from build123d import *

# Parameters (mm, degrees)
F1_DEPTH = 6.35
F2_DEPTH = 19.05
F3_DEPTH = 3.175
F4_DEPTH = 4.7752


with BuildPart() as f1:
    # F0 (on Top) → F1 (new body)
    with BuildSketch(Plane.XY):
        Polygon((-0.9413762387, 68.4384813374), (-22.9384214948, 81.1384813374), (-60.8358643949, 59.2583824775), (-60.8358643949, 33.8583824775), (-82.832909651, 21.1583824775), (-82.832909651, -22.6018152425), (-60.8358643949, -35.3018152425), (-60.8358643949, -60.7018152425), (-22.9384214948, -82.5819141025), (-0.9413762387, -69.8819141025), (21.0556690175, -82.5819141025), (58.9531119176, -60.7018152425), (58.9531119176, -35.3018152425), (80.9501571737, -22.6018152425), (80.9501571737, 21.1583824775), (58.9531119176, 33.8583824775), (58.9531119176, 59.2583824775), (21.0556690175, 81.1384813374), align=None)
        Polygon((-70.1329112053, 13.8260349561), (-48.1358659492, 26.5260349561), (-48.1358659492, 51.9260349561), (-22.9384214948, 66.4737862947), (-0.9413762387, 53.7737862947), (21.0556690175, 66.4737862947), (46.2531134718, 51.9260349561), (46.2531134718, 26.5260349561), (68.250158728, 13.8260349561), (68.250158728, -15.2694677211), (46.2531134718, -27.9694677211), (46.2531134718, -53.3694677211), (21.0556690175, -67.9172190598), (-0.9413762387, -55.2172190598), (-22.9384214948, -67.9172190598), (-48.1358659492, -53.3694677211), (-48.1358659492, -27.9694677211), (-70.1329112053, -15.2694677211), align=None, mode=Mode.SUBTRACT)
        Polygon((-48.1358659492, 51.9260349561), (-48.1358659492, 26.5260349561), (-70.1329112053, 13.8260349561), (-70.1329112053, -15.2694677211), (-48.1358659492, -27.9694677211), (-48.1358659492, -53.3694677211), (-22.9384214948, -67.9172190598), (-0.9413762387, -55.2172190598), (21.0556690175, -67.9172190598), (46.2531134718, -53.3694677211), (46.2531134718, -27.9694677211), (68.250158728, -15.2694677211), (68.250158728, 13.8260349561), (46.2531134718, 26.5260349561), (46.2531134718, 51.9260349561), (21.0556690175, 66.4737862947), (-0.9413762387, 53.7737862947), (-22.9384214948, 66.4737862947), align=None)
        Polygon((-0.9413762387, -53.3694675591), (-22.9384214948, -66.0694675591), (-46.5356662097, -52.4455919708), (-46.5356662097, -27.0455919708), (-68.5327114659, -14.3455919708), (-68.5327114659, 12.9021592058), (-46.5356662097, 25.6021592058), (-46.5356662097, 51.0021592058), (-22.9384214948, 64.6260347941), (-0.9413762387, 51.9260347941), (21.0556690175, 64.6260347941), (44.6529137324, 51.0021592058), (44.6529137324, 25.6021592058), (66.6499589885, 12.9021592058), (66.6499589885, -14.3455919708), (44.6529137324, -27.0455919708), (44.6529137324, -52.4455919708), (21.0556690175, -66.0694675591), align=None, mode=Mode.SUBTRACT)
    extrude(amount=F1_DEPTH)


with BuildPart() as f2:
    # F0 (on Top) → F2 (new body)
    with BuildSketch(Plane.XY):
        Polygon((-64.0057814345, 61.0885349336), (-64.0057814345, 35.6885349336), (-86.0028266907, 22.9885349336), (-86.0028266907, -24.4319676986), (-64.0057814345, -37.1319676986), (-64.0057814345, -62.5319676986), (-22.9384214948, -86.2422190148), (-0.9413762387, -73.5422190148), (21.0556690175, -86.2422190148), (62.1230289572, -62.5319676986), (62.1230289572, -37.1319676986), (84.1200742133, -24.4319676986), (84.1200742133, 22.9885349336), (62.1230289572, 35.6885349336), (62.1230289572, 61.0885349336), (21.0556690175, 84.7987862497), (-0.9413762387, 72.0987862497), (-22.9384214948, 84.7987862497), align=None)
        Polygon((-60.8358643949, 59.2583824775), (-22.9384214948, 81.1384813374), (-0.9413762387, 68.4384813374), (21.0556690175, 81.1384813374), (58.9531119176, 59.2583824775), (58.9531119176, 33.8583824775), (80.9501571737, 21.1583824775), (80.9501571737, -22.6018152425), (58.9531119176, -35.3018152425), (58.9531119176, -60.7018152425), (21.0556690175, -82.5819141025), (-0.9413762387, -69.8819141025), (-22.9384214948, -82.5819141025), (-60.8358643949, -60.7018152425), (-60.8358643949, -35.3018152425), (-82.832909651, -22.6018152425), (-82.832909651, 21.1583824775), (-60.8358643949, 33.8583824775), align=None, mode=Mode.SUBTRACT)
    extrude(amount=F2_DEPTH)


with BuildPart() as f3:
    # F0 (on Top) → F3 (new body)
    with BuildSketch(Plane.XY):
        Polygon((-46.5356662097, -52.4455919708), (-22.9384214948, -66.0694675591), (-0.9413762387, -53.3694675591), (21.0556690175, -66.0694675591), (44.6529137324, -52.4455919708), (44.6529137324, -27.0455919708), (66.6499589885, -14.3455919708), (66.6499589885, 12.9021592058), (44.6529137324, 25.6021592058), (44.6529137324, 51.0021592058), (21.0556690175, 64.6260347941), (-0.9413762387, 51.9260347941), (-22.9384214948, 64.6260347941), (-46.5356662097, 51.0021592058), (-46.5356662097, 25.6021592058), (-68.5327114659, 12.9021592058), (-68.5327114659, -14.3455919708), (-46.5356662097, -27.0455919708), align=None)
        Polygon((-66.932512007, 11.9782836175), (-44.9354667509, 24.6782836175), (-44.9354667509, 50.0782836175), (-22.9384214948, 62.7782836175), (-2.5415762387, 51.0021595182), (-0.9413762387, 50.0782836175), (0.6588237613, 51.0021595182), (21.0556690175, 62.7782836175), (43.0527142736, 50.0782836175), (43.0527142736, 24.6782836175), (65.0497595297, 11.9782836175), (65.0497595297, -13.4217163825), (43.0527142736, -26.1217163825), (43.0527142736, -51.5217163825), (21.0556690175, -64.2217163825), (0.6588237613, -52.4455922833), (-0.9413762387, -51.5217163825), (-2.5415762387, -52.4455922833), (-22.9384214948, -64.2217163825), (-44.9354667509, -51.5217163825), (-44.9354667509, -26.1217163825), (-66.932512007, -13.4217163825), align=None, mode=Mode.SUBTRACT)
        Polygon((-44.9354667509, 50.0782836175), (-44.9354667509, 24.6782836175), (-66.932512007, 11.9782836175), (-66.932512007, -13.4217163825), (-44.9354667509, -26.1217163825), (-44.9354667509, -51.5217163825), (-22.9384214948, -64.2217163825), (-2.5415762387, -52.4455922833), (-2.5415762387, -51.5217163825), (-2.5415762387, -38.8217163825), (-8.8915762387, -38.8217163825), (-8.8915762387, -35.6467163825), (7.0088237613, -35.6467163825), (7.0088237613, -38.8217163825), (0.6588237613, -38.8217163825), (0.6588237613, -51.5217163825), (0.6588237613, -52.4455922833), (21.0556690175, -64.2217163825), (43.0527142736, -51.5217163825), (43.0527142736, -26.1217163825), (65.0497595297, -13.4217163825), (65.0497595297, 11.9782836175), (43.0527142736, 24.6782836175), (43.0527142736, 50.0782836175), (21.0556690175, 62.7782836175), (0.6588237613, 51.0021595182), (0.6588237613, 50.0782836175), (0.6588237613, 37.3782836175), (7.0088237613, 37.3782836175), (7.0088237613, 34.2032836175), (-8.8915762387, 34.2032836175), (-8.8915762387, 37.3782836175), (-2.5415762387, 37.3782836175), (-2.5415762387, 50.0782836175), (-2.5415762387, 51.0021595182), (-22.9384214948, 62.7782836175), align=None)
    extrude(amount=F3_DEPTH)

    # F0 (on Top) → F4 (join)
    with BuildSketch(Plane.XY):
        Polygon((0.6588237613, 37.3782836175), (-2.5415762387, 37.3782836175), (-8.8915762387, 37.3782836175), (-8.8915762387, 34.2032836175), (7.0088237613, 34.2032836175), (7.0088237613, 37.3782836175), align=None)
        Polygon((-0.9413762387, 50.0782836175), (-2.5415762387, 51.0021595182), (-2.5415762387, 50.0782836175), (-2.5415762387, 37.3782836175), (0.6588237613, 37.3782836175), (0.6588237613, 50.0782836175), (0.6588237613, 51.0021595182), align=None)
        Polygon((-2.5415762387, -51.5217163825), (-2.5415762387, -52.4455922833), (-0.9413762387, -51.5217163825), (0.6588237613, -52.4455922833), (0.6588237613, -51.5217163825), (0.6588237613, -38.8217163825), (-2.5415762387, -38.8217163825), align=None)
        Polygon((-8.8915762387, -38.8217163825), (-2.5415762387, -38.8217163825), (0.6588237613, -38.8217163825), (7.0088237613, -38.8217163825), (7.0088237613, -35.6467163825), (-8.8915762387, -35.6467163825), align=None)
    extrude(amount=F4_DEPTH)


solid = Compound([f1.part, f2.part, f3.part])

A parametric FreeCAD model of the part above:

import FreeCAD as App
import Part
import Sketcher
from FreeCAD import Vector
Q = App.Units.Quantity


def add_polygon(sketch, points):
    """Adds a closed chain of lines whose ends are joined by coincident constraints."""
    first, n = sketch.GeometryCount, len(points)
    for a, b in zip(points, points[1:] + points[:1]):
        sketch.addGeometry(Part.LineSegment(App.Vector(*a, 0), App.Vector(*b, 0)), False)
    for i in range(n):
        sketch.addConstraint(Sketcher.Constraint("Coincident", first + i, 2, first + (i + 1) % n, 1))

doc = App.newDocument("Part")
params = doc.addObject("Spreadsheet::Sheet", "Params")
for row, (alias, value) in enumerate([
    ("sketch1_height", "1 in"),
    ("sketch1_length", "1 in"),
    ("pad1_length", "0.25 in"),
    ("sketch2_height", "1 in"),
    ("sketch2_length", "1 in"),
    ("pad2_length", "0.75 in"),
    ("sketch3_height", "1 in"),
    ("sketch3_length", "1 in"),
    ("sketch3_width", "0.25 in"),
    ("sketch3_width2", "0.626 in"),
    ("sketch3_height2", "0.125 in"),
    ("pad3_length", "0.125 in"),
    ("sketch4_width", "0.25 in"),
    ("sketch4_width2", "0.626 in"),
    ("sketch4_height", "0.125 in"),
    ("pad4_length", "0.188 in"),
], start=1):
    params.set(f"A{row}", alias)
    params.set(f"B{row}", "=" + value)
    params.setAlias(f"B{row}", alias)

body = doc.addObject("PartDesign::Body", "Body")

sketch1 = body.newObject("Sketcher::SketchObject", "Sketch")
sketch1.AttachmentSupport = (doc.getObject("XY_Plane"), [""])
sketch1.MapMode = "FlatFace"
add_polygon(sketch1, [(-1, 68), (-23, 81), (-61, 59), (-61, 34), (-83, 21), (-83, -23), (-61, -35), (-61, -61), (-23, -83), (-1, -70), (21, -83), (59, -61), (59, -35), (81, -23), (81, 21), (59, 34), (59, 59), (21, 81)])
add_polygon(sketch1, [(21, -66), (-1, -53), (-23, -66), (-47, -52), (-47, -27), (-69, -14), (-69, 13), (-47, 26), (-47, 51), (-23, 65), (-1, 52), (21, 65), (45, 51), (45, 26), (67, 13), (67, -14), (45, -27), (45, -52)])
sketch1.addConstraint([
    Sketcher.Constraint("Vertical", 2),
    Sketcher.Constraint("Vertical", 4),
    Sketcher.Constraint("Vertical", 6),
    Sketcher.Constraint("Vertical", 11),
    Sketcher.Constraint("Vertical", 13),
    Sketcher.Constraint("Vertical", 15),
    Sketcher.Constraint("Vertical", 21),
    Sketcher.Constraint("Vertical", 23),
    Sketcher.Constraint("Vertical", 25),
    Sketcher.Constraint("Vertical", 30),
    Sketcher.Constraint("Vertical", 32),
    Sketcher.Constraint("Vertical", 34),
    Sketcher.Constraint("Parallel", 1, 3),
    Sketcher.Constraint("Parallel", 0, 5),
    Sketcher.Constraint("Parallel", 5, 7),
    Sketcher.Constraint("Parallel", 3, 8),
    Sketcher.Constraint("Parallel", 7, 9),
    Sketcher.Constraint("Parallel", 8, 10),
    Sketcher.Constraint("Parallel", 10, 12),
    Sketcher.Constraint("Parallel", 9, 14),
    Sketcher.Constraint("Parallel", 14, 16),
    Sketcher.Constraint("Parallel", 12, 17),
    Sketcher.Constraint("Parallel", 16, 18),
    Sketcher.Constraint("Parallel", 17, 19),
    Sketcher.Constraint("Parallel", 18, 20),
    Sketcher.Constraint("Parallel", 20, 22),
    Sketcher.Constraint("Parallel", 19, 24),
    Sketcher.Constraint("Parallel", 24, 26),
    Sketcher.Constraint("Parallel", 22, 27),
    Sketcher.Constraint("Parallel", 26, 28),
    Sketcher.Constraint("Parallel", 27, 29),
    Sketcher.Constraint("Parallel", 29, 31),
    Sketcher.Constraint("Parallel", 28, 33),
    Sketcher.Constraint("Parallel", 33, 35),
    Sketcher.Constraint("Horizontal", 7, 2, 9, 2),
    Sketcher.Constraint("Horizontal", 6, 2, 10, 2),
    Sketcher.Constraint("Horizontal", 5, 2, 11, 2),
    Sketcher.Constraint("Horizontal", 4, 2, 12, 2),
    Sketcher.Constraint("Horizontal", 3, 2, 13, 2),
    Sketcher.Constraint("Horizontal", 2, 2, 14, 2),
    Sketcher.Constraint("Horizontal", 1, 2, 15, 2),
    Sketcher.Constraint("Horizontal", 0, 2, 16, 2),
    Sketcher.Constraint("Horizontal", 26, 2, 28, 2),
    Sketcher.Constraint("Horizontal", 25, 2, 29, 2),
    Sketcher.Constraint("Horizontal", 24, 2, 30, 2),
    Sketcher.Constraint("Horizontal", 23, 2, 31, 2),
    Sketcher.Constraint("Horizontal", 22, 2, 32, 2),
    Sketcher.Constraint("Horizontal", 21, 2, 33, 2),
    Sketcher.Constraint("Horizontal", 20, 2, 34, 2),
    Sketcher.Constraint("Horizontal", 19, 2, 35, 2),
    Sketcher.Constraint("Vertical", 2, 2, 5, 2),
    Sketcher.Constraint("Vertical", 0, 2, 7, 2),
    Sketcher.Constraint("Vertical", 11, 2, 14, 2),
    Sketcher.Constraint("Vertical", 17, 2, 18, 2),
    Sketcher.Constraint("Vertical", 7, 2, 19, 2),
    Sketcher.Constraint("Vertical", 21, 2, 24, 2),
    Sketcher.Constraint("Vertical", 19, 2, 26, 2),
    Sketcher.Constraint("Equal", 2, 6),
    Sketcher.Constraint("Equal", 15, 21),
    Sketcher.Constraint("Equal", 21, 25),
    Sketcher.Constraint("Equal", 0, 3),
    Sketcher.Constraint("Equal", 19, 22),
    Sketcher.Constraint("DistanceY", 2, 2, 2, 1, Q("1 in")),
    Sketcher.Constraint("Distance", 0, Q("1 in")),
    Sketcher.Constraint("Angle", 0, Q("150 deg")),
    Sketcher.Constraint("DistanceX", 6, 2, 20, 2, Q("0.5629999 in")),
    Sketcher.Constraint("DistanceY", 23, 1, 23, 2, Q("27.247751 mm")),
    Sketcher.Constraint("DistanceY", 1, 2, 0, 2, Q("21.880099 mm")),
    Sketcher.Constraint("DistanceY", 4, 2, 4, 1, Q("43.760198 mm")),
    Sketcher.Constraint("DistanceX", 0, 2, -1, 1, Q("22.938421 mm")),
    Sketcher.Constraint("DistanceY", -1, 1, 0, 2, Q("81.138481 mm")),
    Sketcher.Constraint("DistanceY", 20, 2, -1, 1, Q("52.445592 mm")),
])
sketch1.setExpression("Constraints[98]", "Params.sketch1_height")
sketch1.setExpression("Constraints[99]", "Params.sketch1_length")
pad1 = body.newObject("PartDesign::Pad", "Pad")
pad1.Profile = sketch1
pad1.setExpression("Length", "Params.pad1_length")
body2 = doc.addObject("PartDesign::Body", "Body001")

sketch2 = body2.newObject("Sketcher::SketchObject", "Sketch001")
sketch2.AttachmentSupport = (doc.getObject("XY_Plane001"), [""])
sketch2.MapMode = "FlatFace"
add_polygon(sketch2, [(-64, 61), (-64, 36), (-86, 23), (-86, -24), (-64, -37), (-64, -63), (-23, -86), (-1, -74), (21, -86), (62, -63), (62, -37), (84, -24), (84, 23), (62, 36), (62, 61), (21, 85), (-1, 72), (-23, 85)])
add_polygon(sketch2, [(-61, 34), (-61, 59), (-23, 81), (-1, 68), (21, 81), (59, 59), (59, 34), (81, 21), (81, -23), (59, -35), (59, -61), (21, -83), (-1, -70), (-23, -83), (-61, -61), (-61, -35), (-83, -23), (-83, 21)])
sketch2.addConstraint([
    Sketcher.Constraint("Vertical", 0),
    Sketcher.Constraint("Vertical", 2),
    Sketcher.Constraint("Vertical", 4),
    Sketcher.Constraint("Vertical", 9),
    Sketcher.Constraint("Vertical", 11),
    Sketcher.Constraint("Vertical", 13),
    Sketcher.Constraint("Vertical", 18),
    Sketcher.Constraint("Vertical", 23),
    Sketcher.Constraint("Vertical", 25),
    Sketcher.Constraint("Vertical", 27),
    Sketcher.Constraint("Vertical", 32),
    Sketcher.Constraint("Vertical", 34),
    Sketcher.Constraint("Parallel", 3, 5),
    Sketcher.Constraint("Parallel", 1, 6),
    Sketcher.Constraint("Parallel", 5, 7),
    Sketcher.Constraint("Parallel", 6, 8),
    Sketcher.Constraint("Parallel", 8, 10),
    Sketcher.Constraint("Parallel", 7, 12),
    Sketcher.Constraint("Parallel", 12, 14),
    Sketcher.Constraint("Parallel", 10, 15),
    Sketcher.Constraint("Parallel", 14, 16),
    Sketcher.Constraint("Parallel", 15, 17),
    Sketcher.Constraint("Parallel", 17, 19),
    Sketcher.Constraint("Parallel", 16, 20),
    Sketcher.Constraint("Parallel", 19, 21),
    Sketcher.Constraint("Parallel", 20, 22),
    Sketcher.Constraint("Parallel", 22, 24),
    Sketcher.Constraint("Parallel", 21, 26),
    Sketcher.Constraint("Parallel", 26, 28),
    Sketcher.Constraint("Parallel", 24, 29),
    Sketcher.Constraint("Parallel", 28, 30),
    Sketcher.Constraint("Parallel", 29, 31),
    Sketcher.Constraint("Parallel", 31, 33),
    Sketcher.Constraint("Parallel", 30, 35),
    Sketcher.Constraint("Horizontal", 5, 2, 7, 2),
    Sketcher.Constraint("Horizontal", 4, 2, 8, 2),
    Sketcher.Constraint("Horizontal", 3, 2, 9, 2),
    Sketcher.Constraint("Horizontal", 2, 2, 10, 2),
    Sketcher.Constraint("Horizontal", 1, 2, 11, 2),
    Sketcher.Constraint("Horizontal", 0, 2, 12, 2),
    Sketcher.Constraint("Horizontal", 14, 2, 16, 2),
    Sketcher.Constraint("Horizontal", 13, 2, 17, 2),
    Sketcher.Constraint("Horizontal", 19, 2, 21, 2),
    Sketcher.Constraint("Horizontal", 18, 2, 22, 2),
    Sketcher.Constraint("Horizontal", 28, 2, 30, 2),
    Sketcher.Constraint("Horizontal", 27, 2, 31, 2),
    Sketcher.Constraint("Horizontal", 26, 2, 32, 2),
    Sketcher.Constraint("Horizontal", 25, 2, 33, 2),
    Sketcher.Constraint("Horizontal", 24, 2, 34, 2),
    Sketcher.Constraint("Horizontal", 23, 2, 35, 2),
    Sketcher.Constraint("Vertical", 0, 2, 3, 2),
    Sketcher.Constraint("Vertical", 9, 2, 12, 2),
    Sketcher.Constraint("Vertical", 7, 2, 14, 2),
    Sketcher.Constraint("Vertical", 16, 2, 19, 2),
    Sketcher.Constraint("Vertical", 15, 2, 20, 2),
    Sketcher.Constraint("Vertical", 23, 2, 26, 2),
    Sketcher.Constraint("Vertical", 21, 2, 28, 2),
    Sketcher.Constraint("Equal", 0, 4),
    Sketcher.Constraint("Equal", 13, 18),
    Sketcher.Constraint("Equal", 23, 27),
    Sketcher.Constraint("Equal", 3, 6),
    Sketcher.Constraint("Equal", 21, 24),
    Sketcher.Constraint("DistanceY", 0, 2, 0, 1, Q("1 in")),
    Sketcher.Constraint("Distance", 1, Q("1 in")),
    Sketcher.Constraint("Angle", 1, Q("-150 deg")),
    Sketcher.Constraint("DistanceX", 17, 2, 18, 2, Q("0.1247999 in")),
    Sketcher.Constraint("DistanceY", 18, 2, 19, 2, Q("21.880099 mm")),
    Sketcher.Constraint("DistanceY", 2, 2, 2, 1, Q("47.420503 mm")),
    Sketcher.Constraint("DistanceY", 25, 2, 25, 1, Q("43.760198 mm")),
    Sketcher.Constraint("DistanceX", 0, 2, -1, 1, Q("64.005781 mm")),
    Sketcher.Constraint("DistanceY", 5, 2, -1, 1, Q("86.242219 mm")),
    Sketcher.Constraint("DistanceY", -1, 1, 19, 2, Q("81.138481 mm")),
])
sketch2.setExpression("Constraints[98]", "Params.sketch2_height")
sketch2.setExpression("Constraints[99]", "Params.sketch2_length")
pad2 = body2.newObject("PartDesign::Pad", "Pad001")
pad2.Profile = sketch2
pad2.setExpression("Length", "Params.pad2_length")
body3 = doc.addObject("PartDesign::Body", "Body002")

sketch3 = body3.newObject("Sketcher::SketchObject", "Sketch002")
sketch3.AttachmentSupport = (doc.getObject("XY_Plane002"), [""])
sketch3.MapMode = "FlatFace"
add_polygon(sketch3, [(-46.5, -52.4), (-22.9, -66.1), (-0.9, -53.4), (21.1, -66.1), (44.7, -52.4), (44.7, -27), (66.6, -14.3), (66.6, 12.9), (44.7, 25.6), (44.7, 51), (21.1, 64.6), (-0.9, 51.9), (-22.9, 64.6), (-46.5, 51), (-46.5, 25.6), (-68.5, 12.9), (-68.5, -14.3), (-46.5, -27)])
add_polygon(sketch3, [(-0.9, -51.5), (-2.5, -52.4), (-2.5, -38.8), (-8.9, -38.8), (-8.9, -35.6), (7, -35.6), (7, -38.8), (0.7, -38.8), (0.7, -52.4)])
add_polygon(sketch3, [(-0.9, 50.1), (0.7, 51), (0.7, 37.4), (7, 37.4), (7, 34.2), (-8.9, 34.2), (-8.9, 37.4), (-2.5, 37.4), (-2.5, 51)])
sketch3.addConstraint([
    Sketcher.Constraint("Vertical", 4),
    Sketcher.Constraint("Vertical", 6),
    Sketcher.Constraint("Vertical", 8),
    Sketcher.Constraint("Vertical", 13),
    Sketcher.Constraint("Vertical", 15),
    Sketcher.Constraint("Vertical", 17),
    Sketcher.Constraint("Vertical", 19),
    Sketcher.Constraint("Horizontal", 20),
    Sketcher.Constraint("Vertical", 21),
    Sketcher.Constraint("Horizontal", 22),
    Sketcher.Constraint("Vertical", 23),
    Sketcher.Constraint("Horizontal", 24),
    Sketcher.Constraint("Vertical", 25),
    Sketcher.Constraint("Vertical", 28),
    Sketcher.Constraint("Horizontal", 29),
    Sketcher.Constraint("Vertical", 30),
    Sketcher.Constraint("Horizontal", 31),
    Sketcher.Constraint("Vertical", 32),
    Sketcher.Constraint("Horizontal", 33),
    Sketcher.Constraint("Vertical", 34),
    Sketcher.Constraint("Parallel", 0, 2),
    Sketcher.Constraint("Parallel", 1, 3),
    Sketcher.Constraint("Parallel", 3, 5),
    Sketcher.Constraint("Parallel", 2, 7),
    Sketcher.Constraint("Parallel", 7, 9),
    Sketcher.Constraint("Parallel", 5, 10),
    Sketcher.Constraint("Parallel", 9, 11),
    Sketcher.Constraint("Parallel", 10, 12),
    Sketcher.Constraint("Parallel", 12, 14),
    Sketcher.Constraint("Parallel", 11, 16),
    Sketcher.Constraint("Parallel", 14, 18),
    Sketcher.Constraint("Parallel", 16, 26),
    Sketcher.Constraint("Parallel", 18, 27),
    Sketcher.Constraint("Parallel", 26, 35),
    Sketcher.Constraint("Horizontal", 0, 2, 2, 2),
    Sketcher.Constraint("Horizontal", 9, 2, 11, 2),
    Sketcher.Constraint("Horizontal", 8, 2, 12, 2),
    Sketcher.Constraint("Horizontal", 7, 2, 13, 2),
    Sketcher.Constraint("Horizontal", 6, 2, 14, 2),
    Sketcher.Constraint("Horizontal", 5, 2, 15, 2),
    Sketcher.Constraint("Horizontal", 4, 2, 16, 2),
    Sketcher.Constraint("Horizontal", 3, 2, 17, 2),
    Sketcher.Constraint("Horizontal", 17, 2, 18, 2),
    Sketcher.Constraint("Horizontal", 20, 2, 23, 2),
    Sketcher.Constraint("Horizontal", 18, 2, 25, 2),
    Sketcher.Constraint("Horizontal", 12, 2, 27, 2),
    Sketcher.Constraint("Horizontal", 29, 2, 32, 2),
    Sketcher.Constraint("Horizontal", 27, 2, 34, 2),
    Sketcher.Constraint("Vertical", 4, 2, 7, 2),
    Sketcher.Constraint("Vertical", 2, 2, 9, 2),
    Sketcher.Constraint("Vertical", 1, 2, 10, 2),
    Sketcher.Constraint("Vertical", 10, 2, 26, 2),
    Sketcher.Constraint("Vertical", 25, 2, 27, 2),
    Sketcher.Constraint("Vertical", 23, 2, 29, 2),
    Sketcher.Constraint("Vertical", 21, 2, 31, 2),
    Sketcher.Constraint("Vertical", 19, 2, 33, 2),
    Sketcher.Constraint("Equal", 20, 24),
    Sketcher.Constraint("Equal", 4, 8),
    Sketcher.Constraint("Equal", 25, 28),
    Sketcher.Constraint("Equal", 23, 30),
    Sketcher.Constraint("Equal", 2, 5),
    Sketcher.Constraint("DistanceY", 4, 1, 4, 2, Q("1 in")),
    Sketcher.Constraint("Distance", 1, Q("1 in")),
    Sketcher.Constraint("Angle", 0, Q("-30 deg")),
    Sketcher.Constraint("DistanceX", 20, 2, 20, 1, Q("0.25 in")),
    Sketcher.Constraint("DistanceY", 26, 2, 19, 2, Q("0.5 in")),
    Sketcher.Constraint("DistanceX", 22, 1, 22, 2, Q("0.626 in")),
    Sketcher.Constraint("DistanceY", 21, 1, 21, 2, Q("0.125 in")),
    Sketcher.Constraint("DistanceY", 6, 1, 6, 2, Q("27.247751 mm")),
    Sketcher.Constraint("Distance", 0, Q("27.247751 mm")),
    Sketcher.Constraint("DistanceX", 0, 2, -1, 1, Q("22.938421 mm")),
    Sketcher.Constraint("DistanceY", 3, 2, -1, 1, Q("52.445592 mm")),
])
sketch3.setExpression("Constraints[97]", "Params.sketch3_height")
sketch3.setExpression("Constraints[98]", "Params.sketch3_length")
sketch3.setExpression("Constraints[100]", "Params.sketch3_width")
sketch3.setExpression("Constraints[102]", "Params.sketch3_width2")
sketch3.setExpression("Constraints[103]", "Params.sketch3_height2")
pad3 = body3.newObject("PartDesign::Pad", "Pad002")
pad3.Profile = sketch3
pad3.setExpression("Length", "Params.pad3_length")

sketch4 = body3.newObject("Sketcher::SketchObject", "Sketch003")
sketch4.AttachmentSupport = (doc.getObject("XY_Plane002"), [""])
sketch4.MapMode = "FlatFace"
add_polygon(sketch4, [(-8.9, 37.4), (-8.9, 34.2), (7, 34.2), (7, 37.4), (0.7, 37.4), (0.7, 51), (-0.9, 50.1), (-2.5, 51), (-2.5, 37.4)])
add_polygon(sketch4, [(-2.5, -52.4), (-0.9, -51.5), (0.7, -52.4), (0.7, -38.8), (7, -38.8), (7, -35.6), (-8.9, -35.6), (-8.9, -38.8), (-2.5, -38.8)])
sketch4.addConstraint([
    Sketcher.Constraint("Vertical", 0),
    Sketcher.Constraint("Horizontal", 1),
    Sketcher.Constraint("Vertical", 2),
    Sketcher.Constraint("Horizontal", 3),
    Sketcher.Constraint("Vertical", 4),
    Sketcher.Constraint("Vertical", 7),
    Sketcher.Constraint("Horizontal", 8),
    Sketcher.Constraint("Vertical", 11),
    Sketcher.Constraint("Horizontal", 12),
    Sketcher.Constraint("Vertical", 13),
    Sketcher.Constraint("Horizontal", 14),
    Sketcher.Constraint("Vertical", 15),
    Sketcher.Constraint("Horizontal", 16),
    Sketcher.Constraint("Vertical", 17),
    Sketcher.Constraint("Parallel", 5, 9),
    Sketcher.Constraint("Parallel", 6, 10),
    Sketcher.Constraint("Horizontal", 4, 2, 6, 2),
    Sketcher.Constraint("Horizontal", 3, 2, 7, 2),
    Sketcher.Constraint("Horizontal", 12, 2, 15, 2),
    Sketcher.Constraint("Horizontal", 10, 2, 17, 2),
    Sketcher.Constraint("Vertical", 5, 2, 9, 2),
    Sketcher.Constraint("Vertical", 4, 2, 10, 2),
    Sketcher.Constraint("Vertical", 2, 2, 12, 2),
    Sketcher.Constraint("Vertical", 8, 2, 14, 2),
    Sketcher.Constraint("Vertical", 7, 2, 16, 2),
    Sketcher.Constraint("Equal", 3, 8),
    Sketcher.Constraint("Equal", 7, 11),
    Sketcher.Constraint("Equal", 2, 13),
    Sketcher.Constraint("Angle", 5, Q("-150 deg")),
    Sketcher.Constraint("DistanceY", 11, 2, 3, 2, Q("3 in")),
    Sketcher.Constraint("DistanceX", 3, 2, 3, 1, Q("0.25 in")),
    Sketcher.Constraint("DistanceY", 3, 2, 5, 2, Q("0.5 in")),
    Sketcher.Constraint("DistanceX", 1, 1, 1, 2, Q("0.626 in")),
    Sketcher.Constraint("DistanceY", 0, 2, 0, 1, Q("0.125 in")),
    Sketcher.Constraint("DistanceY", -1, 1, 4, 2, Q("51.00216 mm")),
    Sketcher.Constraint("DistanceX", 0, 2, -1, 1, Q("8.891576 mm")),
])
sketch4.setExpression("Constraints[48]", "Params.sketch4_width")
sketch4.setExpression("Constraints[50]", "Params.sketch4_width2")
sketch4.setExpression("Constraints[51]", "Params.sketch4_height")
pad4 = body3.newObject("PartDesign::Pad", "Pad003")
pad4.Profile = sketch4
pad4.setExpression("Length", "Params.pad4_length")

doc.recompute()
